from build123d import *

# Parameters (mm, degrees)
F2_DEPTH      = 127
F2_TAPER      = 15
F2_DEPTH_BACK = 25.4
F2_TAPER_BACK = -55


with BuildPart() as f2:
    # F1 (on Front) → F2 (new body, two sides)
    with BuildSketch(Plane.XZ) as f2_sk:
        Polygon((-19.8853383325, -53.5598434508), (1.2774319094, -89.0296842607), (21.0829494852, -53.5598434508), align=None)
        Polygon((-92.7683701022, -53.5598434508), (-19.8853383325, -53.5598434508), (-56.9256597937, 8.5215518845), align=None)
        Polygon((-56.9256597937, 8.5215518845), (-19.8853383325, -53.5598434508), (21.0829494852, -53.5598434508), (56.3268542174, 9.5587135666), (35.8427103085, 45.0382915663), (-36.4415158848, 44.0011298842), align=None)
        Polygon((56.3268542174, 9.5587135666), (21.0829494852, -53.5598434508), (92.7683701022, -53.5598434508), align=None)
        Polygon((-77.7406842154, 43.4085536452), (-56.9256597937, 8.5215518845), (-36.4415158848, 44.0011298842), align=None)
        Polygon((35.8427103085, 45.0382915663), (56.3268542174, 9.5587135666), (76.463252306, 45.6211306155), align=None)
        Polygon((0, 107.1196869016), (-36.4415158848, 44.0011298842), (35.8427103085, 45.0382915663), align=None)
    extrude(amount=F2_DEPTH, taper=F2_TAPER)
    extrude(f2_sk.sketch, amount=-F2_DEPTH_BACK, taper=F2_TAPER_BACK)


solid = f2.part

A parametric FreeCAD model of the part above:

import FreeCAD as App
import Part
import Sketcher

V = App.Vector
Q = App.Units.Quantity

doc = App.newDocument("Part")
body = doc.addObject("PartDesign::Body", "Body")

sketch1 = body.newObject("Sketcher::SketchObject", "Sketch")
sketch1.AttachmentSupport = (doc.getObject("XZ_Plane"), [""])
sketch1.MapMode = "FlatFace"
sketch1.addGeometry([
    Part.LineSegment(V(-19.885338, -53.559843, 0), V(1.277432, -89.029684, 0)),
    Part.LineSegment(V(1.277432, -89.029684, 0), V(21.082949, -53.559843, 0)),
    Part.LineSegment(V(21.082949, -53.559843, 0), V(92.76837, -53.559843, 0)),
    Part.LineSegment(V(92.76837, -53.559843, 0), V(56.326854, 9.558714, 0)),
    Part.LineSegment(V(56.326854, 9.558714, 0), V(76.463252, 45.621131, 0)),
    Part.LineSegment(V(76.463252, 45.621131, 0), V(35.84271, 45.038292, 0)),
    Part.LineSegment(V(35.84271, 45.038292, 0), V(0, 107.119687, 0)),
    Part.LineSegment(V(0, 107.119687, 0), V(-36.441516, 44.00113, 0)),
    Part.LineSegment(V(-36.441516, 44.00113, 0), V(-77.740684, 43.408554, 0)),
    Part.LineSegment(V(-77.740684, 43.408554, 0), V(-56.92566, 8.521552, 0)),
    Part.LineSegment(V(-56.92566, 8.521552, 0), V(-92.76837, -53.559843, 0)),
    Part.LineSegment(V(-92.76837, -53.559843, 0), V(-19.885338, -53.559843, 0)),
], False)
sketch1.addConstraint([
    Sketcher.Constraint("Coincident", 0, 2, 1, 1),
    Sketcher.Constraint("Coincident", 1, 2, 2, 1),
    Sketcher.Constraint("Coincident", 2, 2, 3, 1),
    Sketcher.Constraint("Coincident", 3, 2, 4, 1),
    Sketcher.Constraint("Coincident", 4, 2, 5, 1),
    Sketcher.Constraint("Coincident", 5, 2, 6, 1),
    Sketcher.Constraint("Coincident", 6, 2, 7, 1),
    Sketcher.Constraint("Coincident", 7, 2, 8, 1),
    Sketcher.Constraint("Coincident", 8, 2, 9, 1),
    Sketcher.Constraint("Coincident", 9, 2, 10, 1),
    Sketcher.Constraint("Coincident", 10, 2, 11, 1),
    Sketcher.Constraint("Coincident", 11, 2, 0, 1),
    Sketcher.Constraint("Horizontal", 2),
    Sketcher.Constraint("Horizontal", 11),
    Sketcher.Constraint("Symmetric", 2, 2, 10, 2, -2),
    Sketcher.Constraint("PointOnObject", 6, 2, -2),
    Sketcher.Constraint("Parallel", 1, 4),
    Sketcher.Constraint("Parallel", 3, 6),
    Sketcher.Constraint("Parallel", 5, 8),
    Sketcher.Constraint("Parallel", 0, 9),
    Sketcher.Constraint("Parallel", 7, 10),
    Sketcher.Constraint("Equal", 0, 4),
    Sketcher.Constraint("Equal", 1, 5),
    Sketcher.Constraint("Equal", 3, 7),
    Sketcher.Constraint("Equal", 4, 8),
    Sketcher.Constraint("Equal", 5, 9),
    Sketcher.Constraint("Equal", 6, 10),
    Sketcher.Constraint("Angle", 3, Q("120 deg")),
    Sketcher.Constraint("Angle", 7, Q("-120 deg")),
    Sketcher.Constraint("DistanceX", 0, 2, 3, 2, Q("2.1673001 in")),
    Sketcher.Constraint("DistanceX", 2, 1, 2, 2, Q("71.685421 mm")),
    Sketcher.Constraint("DistanceX", 11, 1, 11, 2, Q("72.883032 mm")),
    Sketcher.Constraint("DistanceX", 3, 2, 4, 2, Q("20.136398 mm")),
    Sketcher.Constraint("DistanceY", 7, 2, 4, 2, Q("1.620001 mm")),
    Sketcher.Constraint("DistanceY", -1, 1, 4, 2, Q("45.621131 mm")),
])
pad1 = body.newObject("PartDesign::Pad", "Pad")
pad1.Profile = sketch1
pad1.Length = Q("5 in")
pad1.TaperAngle = -15
pad2 = body.newObject("PartDesign::Pad", "Pad001")
pad2.Profile = sketch1
pad2.Length = Q("1 in")
pad2.Reversed = True
pad2.TaperAngle = 55

doc.recompute()
